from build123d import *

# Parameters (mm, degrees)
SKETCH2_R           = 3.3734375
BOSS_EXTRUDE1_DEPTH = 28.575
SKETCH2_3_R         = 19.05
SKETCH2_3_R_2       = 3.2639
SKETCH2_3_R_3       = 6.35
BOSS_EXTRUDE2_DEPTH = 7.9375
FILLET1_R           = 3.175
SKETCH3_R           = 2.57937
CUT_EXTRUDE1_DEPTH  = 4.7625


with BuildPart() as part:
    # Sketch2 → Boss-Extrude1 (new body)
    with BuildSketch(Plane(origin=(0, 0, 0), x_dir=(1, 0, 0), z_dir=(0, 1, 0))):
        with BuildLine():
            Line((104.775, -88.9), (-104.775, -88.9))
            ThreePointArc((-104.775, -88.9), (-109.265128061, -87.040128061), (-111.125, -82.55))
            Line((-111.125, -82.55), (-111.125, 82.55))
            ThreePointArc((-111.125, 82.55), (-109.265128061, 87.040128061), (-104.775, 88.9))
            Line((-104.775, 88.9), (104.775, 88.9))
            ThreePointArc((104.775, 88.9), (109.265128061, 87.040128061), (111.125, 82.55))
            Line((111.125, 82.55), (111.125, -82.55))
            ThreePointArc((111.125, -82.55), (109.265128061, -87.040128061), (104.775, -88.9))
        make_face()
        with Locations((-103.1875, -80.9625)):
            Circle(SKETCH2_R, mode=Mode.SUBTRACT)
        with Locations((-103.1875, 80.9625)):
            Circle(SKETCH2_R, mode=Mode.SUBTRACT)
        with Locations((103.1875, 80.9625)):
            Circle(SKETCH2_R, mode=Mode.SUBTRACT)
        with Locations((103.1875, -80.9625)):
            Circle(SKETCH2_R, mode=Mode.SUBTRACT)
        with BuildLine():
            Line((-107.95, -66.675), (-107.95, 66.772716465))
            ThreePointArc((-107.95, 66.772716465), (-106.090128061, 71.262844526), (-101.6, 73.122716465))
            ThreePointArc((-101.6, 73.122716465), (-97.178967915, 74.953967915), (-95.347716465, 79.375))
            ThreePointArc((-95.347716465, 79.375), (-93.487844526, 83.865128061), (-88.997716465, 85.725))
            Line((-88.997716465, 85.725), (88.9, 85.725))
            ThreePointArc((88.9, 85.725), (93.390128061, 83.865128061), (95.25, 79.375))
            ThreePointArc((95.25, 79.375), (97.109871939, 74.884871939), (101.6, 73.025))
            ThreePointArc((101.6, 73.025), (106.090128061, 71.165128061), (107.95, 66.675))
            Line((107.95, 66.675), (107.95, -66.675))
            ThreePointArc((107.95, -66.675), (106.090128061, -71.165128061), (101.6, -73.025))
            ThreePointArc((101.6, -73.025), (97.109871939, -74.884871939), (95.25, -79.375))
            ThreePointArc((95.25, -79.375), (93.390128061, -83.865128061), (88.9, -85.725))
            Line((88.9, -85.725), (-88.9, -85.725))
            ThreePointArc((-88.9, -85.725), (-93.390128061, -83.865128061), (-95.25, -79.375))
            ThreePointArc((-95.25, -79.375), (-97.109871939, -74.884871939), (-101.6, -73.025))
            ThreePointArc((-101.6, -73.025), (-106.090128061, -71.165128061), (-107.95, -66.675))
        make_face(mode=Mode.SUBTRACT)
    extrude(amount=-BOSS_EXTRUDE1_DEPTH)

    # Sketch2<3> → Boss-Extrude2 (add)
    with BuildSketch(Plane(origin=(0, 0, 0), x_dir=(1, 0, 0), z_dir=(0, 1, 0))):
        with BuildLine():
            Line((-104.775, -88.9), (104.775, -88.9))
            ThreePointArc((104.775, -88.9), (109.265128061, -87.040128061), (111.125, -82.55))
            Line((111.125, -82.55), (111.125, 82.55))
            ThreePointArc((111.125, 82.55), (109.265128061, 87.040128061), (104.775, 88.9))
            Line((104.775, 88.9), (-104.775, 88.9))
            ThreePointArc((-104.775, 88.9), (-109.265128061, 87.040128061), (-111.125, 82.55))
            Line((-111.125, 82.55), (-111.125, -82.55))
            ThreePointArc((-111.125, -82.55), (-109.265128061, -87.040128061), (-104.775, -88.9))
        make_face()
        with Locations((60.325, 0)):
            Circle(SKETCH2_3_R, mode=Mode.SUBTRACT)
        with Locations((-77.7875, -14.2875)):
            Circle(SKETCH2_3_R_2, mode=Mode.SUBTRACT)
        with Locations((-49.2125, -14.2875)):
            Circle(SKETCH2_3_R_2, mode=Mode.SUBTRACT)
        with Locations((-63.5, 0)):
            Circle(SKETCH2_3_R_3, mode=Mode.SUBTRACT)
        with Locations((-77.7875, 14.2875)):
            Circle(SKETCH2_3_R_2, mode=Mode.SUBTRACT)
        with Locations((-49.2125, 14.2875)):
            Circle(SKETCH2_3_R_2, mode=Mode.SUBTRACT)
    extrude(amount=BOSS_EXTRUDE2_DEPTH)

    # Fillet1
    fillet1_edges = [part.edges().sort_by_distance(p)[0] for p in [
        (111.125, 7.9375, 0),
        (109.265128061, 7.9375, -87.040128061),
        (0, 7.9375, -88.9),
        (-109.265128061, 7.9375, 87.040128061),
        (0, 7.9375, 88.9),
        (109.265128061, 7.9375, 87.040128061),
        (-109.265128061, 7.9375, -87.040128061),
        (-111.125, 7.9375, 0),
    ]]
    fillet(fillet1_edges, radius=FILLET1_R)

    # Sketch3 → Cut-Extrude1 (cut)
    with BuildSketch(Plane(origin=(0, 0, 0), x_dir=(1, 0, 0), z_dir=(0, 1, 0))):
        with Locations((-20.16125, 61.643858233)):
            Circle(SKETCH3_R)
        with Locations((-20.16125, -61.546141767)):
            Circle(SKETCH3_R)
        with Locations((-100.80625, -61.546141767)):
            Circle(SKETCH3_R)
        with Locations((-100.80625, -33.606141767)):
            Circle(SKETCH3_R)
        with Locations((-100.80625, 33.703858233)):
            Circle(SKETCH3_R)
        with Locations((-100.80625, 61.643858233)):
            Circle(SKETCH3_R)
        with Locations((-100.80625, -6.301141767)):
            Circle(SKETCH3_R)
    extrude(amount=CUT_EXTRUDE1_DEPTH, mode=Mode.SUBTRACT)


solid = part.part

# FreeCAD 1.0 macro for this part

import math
import FreeCAD as App
import Part
import Sketcher

V = App.Vector
Q = App.Units.Quantity


def edges_at(feature, points):
    """Names of the edges that pass closest to the given points."""
    edges = feature.Shape.Edges
    near = lambda p: min(range(len(edges)), key=lambda i: edges[i].distToShape(Part.Vertex(*p))[0])
    return sorted({f"Edge{near(p) + 1}" for p in points})

doc = App.newDocument("Part")
body = doc.addObject("PartDesign::Body", "Body")

# Sketch on XZ plane
sketch1 = body.newObject("Sketcher::SketchObject", "Sketch")
sketch1.AttachmentSupport = (doc.getObject("XZ_Plane"), [""])
sketch1.MapMode = "FlatFace"
sketch1.addGeometry([
    Part.LineSegment(V(-104.775, 88.9, 0), V(104.775, 88.9, 0)),  # 0
    Part.ArcOfCircle(Part.Circle(V(104.775, 82.55, 0), V(0, 0, 1), 6.35), math.radians(0), math.radians(90)),  # 1
    Part.LineSegment(V(111.125, 82.55, 0), V(111.125, -82.55, 0)),  # 2
    Part.ArcOfCircle(Part.Circle(V(104.775, -82.55, 0), V(0, 0, 1), 6.35), math.radians(-90), math.radians(0)),  # 3
    Part.LineSegment(V(104.775, -88.9, 0), V(-104.775, -88.9, 0)),  # 4
    Part.ArcOfCircle(Part.Circle(V(-104.775, -82.55, 0), V(0, 0, 1), 6.35), math.radians(180), math.radians(270)),  # 5
    Part.LineSegment(V(-111.125, -82.55, 0), V(-111.125, 82.55, 0)),  # 6
    Part.ArcOfCircle(Part.Circle(V(-104.775, 82.55, 0), V(0, 0, 1), 6.35), math.radians(90), math.radians(180)),  # 7
    Part.Circle(V(103.1875, 80.9625, 0), V(0, 0, 1), 3.373438),  # 8
    Part.Circle(V(-103.1875, 80.9625, 0), V(0, 0, 1), 3.373438),  # 9
    Part.Circle(V(103.1875, -80.9625, 0), V(0, 0, 1), 3.373438),  # 10
    Part.LineSegment(V(-107.95, 66.675, 0), V(-107.95, -66.772716, 0)),  # 11
    Part.ArcOfCircle(Part.Circle(V(-101.6, -66.772716, 0), V(0, 0, 1), 6.35), math.radians(180), math.radians(270)),  # 12
    Part.ArcOfCircle(Part.Circle(V(-101.6, -79.375, 0), V(0, 0, 1), 6.252284), math.radians(0), math.radians(90)),  # 13
    Part.ArcOfCircle(Part.Circle(V(-88.997716, -79.375, 0), V(0, 0, 1), 6.35), math.radians(180), math.radians(270)),  # 14
    Part.LineSegment(V(-88.997716, -85.725, 0), V(88.9, -85.725, 0)),  # 15
    Part.ArcOfCircle(Part.Circle(V(88.9, -79.375, 0), V(0, 0, 1), 6.35), math.radians(-90), math.radians(0)),  # 16
    Part.ArcOfCircle(Part.Circle(V(101.6, -79.375, 0), V(0, 0, 1), 6.35), math.radians(90), math.radians(180)),  # 17
    Part.ArcOfCircle(Part.Circle(V(101.6, -66.675, 0), V(0, 0, 1), 6.35), math.radians(-90), math.radians(0)),  # 18
    Part.LineSegment(V(107.95, -66.675, 0), V(107.95, 66.675, 0)),  # 19
    Part.ArcOfCircle(Part.Circle(V(101.6, 66.675, 0), V(0, 0, 1), 6.35), math.radians(0), math.radians(90)),  # 20
    Part.ArcOfCircle(Part.Circle(V(101.6, 79.375, 0), V(0, 0, 1), 6.35), math.radians(180), math.radians(270)),  # 21
    Part.ArcOfCircle(Part.Circle(V(88.9, 79.375, 0), V(0, 0, 1), 6.35), math.radians(0), math.radians(90)),  # 22
    Part.LineSegment(V(88.9, 85.725, 0), V(-88.9, 85.725, 0)),  # 23
    Part.ArcOfCircle(Part.Circle(V(-88.9, 79.375, 0), V(0, 0, 1), 6.35), math.radians(90), math.radians(180)),  # 24
    Part.ArcOfCircle(Part.Circle(V(-101.6, 79.375, 0), V(0, 0, 1), 6.35), math.radians(-90), math.radians(0)),  # 25
    Part.ArcOfCircle(Part.Circle(V(-101.6, 66.675, 0), V(0, 0, 1), 6.35), math.radians(90), math.radians(180)),  # 26
    Part.Circle(V(-103.1875, -80.9625, 0), V(0, 0, 1), 3.373438),  # 27
], False)
sketch1.addConstraint([
    Sketcher.Constraint("Tangent", 0, 2, 1, 2),
    Sketcher.Constraint("Tangent", 1, 1, 2, 1),
    Sketcher.Constraint("Tangent", 2, 2, 3, 2),
    Sketcher.Constraint("Tangent", 3, 1, 4, 1),
    Sketcher.Constraint("Tangent", 4, 2, 5, 2),
    Sketcher.Constraint("Tangent", 5, 1, 6, 1),
    Sketcher.Constraint("Tangent", 6, 2, 7, 2),
    Sketcher.Constraint("Tangent", 7, 1, 0, 1),
    Sketcher.Constraint("Tangent", 11, 2, 12, 1),
    Sketcher.Constraint("Tangent", 12, 2, 13, 2),
    Sketcher.Constraint("Tangent", 13, 1, 14, 1),
    Sketcher.Constraint("Tangent", 14, 2, 15, 1),
    Sketcher.Constraint("Tangent", 15, 2, 16, 1),
    Sketcher.Constraint("Tangent", 16, 2, 17, 2),
    Sketcher.Constraint("Tangent", 17, 1, 18, 1),
    Sketcher.Constraint("Tangent", 18, 2, 19, 1),
    Sketcher.Constraint("Tangent", 19, 2, 20, 1),
    Sketcher.Constraint("Tangent", 20, 2, 21, 2),
    Sketcher.Constraint("Tangent", 21, 1, 22, 1),
    Sketcher.Constraint("Tangent", 22, 2, 23, 1),
    Sketcher.Constraint("Tangent", 23, 2, 24, 1),
    Sketcher.Constraint("Tangent", 24, 2, 25, 2),
    Sketcher.Constraint("Tangent", 25, 1, 26, 1),
    Sketcher.Constraint("Tangent", 26, 2, 11, 1),
    Sketcher.Constraint("Horizontal", 0),
    Sketcher.Constraint("Vertical", 2),
    Sketcher.Constraint("Horizontal", 4),
    Sketcher.Constraint("Vertical", 6),
    Sketcher.Constraint("Vertical", 11),
    Sketcher.Constraint("Horizontal", 15),
    Sketcher.Constraint("Vertical", 19),
    Sketcher.Constraint("Horizontal", 23),
    Sketcher.Constraint("Equal", 1, 3),
    Sketcher.Constraint("Equal", 3, 5),
    Sketcher.Constraint("Equal", 5, 7),
    Sketcher.Constraint("Equal", 8, 9),
    Sketcher.Constraint("Equal", 9, 10),
    Sketcher.Constraint("Equal", 7, 12),
    Sketcher.Constraint("Equal", 12, 14),
    Sketcher.Constraint("Equal", 14, 16),
    Sketcher.Constraint("Equal", 16, 17),
    Sketcher.Constraint("Equal", 17, 18),
    Sketcher.Constraint("Equal", 18, 20),
    Sketcher.Constraint("Equal", 20, 21),
    Sketcher.Constraint("Equal", 21, 22),
    Sketcher.Constraint("Equal", 22, 24),
    Sketcher.Constraint("Equal", 24, 25),
    Sketcher.Constraint("Equal", 25, 26),
    Sketcher.Constraint("Equal", 10, 27),
    Sketcher.Constraint("Symmetric", 1, 3, 5, 3, -1, 1),
    Sketcher.Constraint("Symmetric", 9, 3, 10, 3, -1, 1),
    Sketcher.Constraint("Symmetric", 13, 3, 21, 3, -1, 1),
    Sketcher.Constraint("Symmetric", 16, 3, 24, 3, -1, 1),
    Sketcher.Constraint("Symmetric", 18, 3, 26, 3, -1, 1),
    Sketcher.Constraint("Symmetric", 8, 3, 27, 3, -1, 1),
    Sketcher.Constraint("Symmetric", 8, 3, 9, 3, -2),
    Sketcher.Constraint("Symmetric", 13, 3, 17, 3, -2),
    Sketcher.Constraint("Horizontal", 13, 3, 14, 3),
    Sketcher.Constraint("Vertical", 12, 3, 13, 3),
    Sketcher.Constraint("DistanceX", 23, 2, 23, 1, Q("7 in")),
    Sketcher.Constraint("Radius", 1, Q("0.25 in")),
    Sketcher.Constraint("Diameter", 8, Q("0.265625 in")),
    Sketcher.Constraint("DistanceY", 2, 2, 2, 1, Q("6.5 in")),
    Sketcher.Constraint("DistanceX", 0, 1, 0, 2, Q("8.25 in")),
    Sketcher.Constraint("DistanceY", 19, 1, 19, 2, Q("5.25 in")),
    Sketcher.Constraint("DistanceX", -1, 1, 8, 3, Q("4.0625 in")),
    Sketcher.Constraint("DistanceY", -1, 1, 8, 3, Q("3.1875 in")),
    Sketcher.Constraint("Radius", 13, Q("6.252284 mm")),
])
pad1 = body.newObject("PartDesign::Pad", "Pad")
pad1.Profile = sketch1
pad1.Length = Q("1.125 in")

# Sketch on XZ plane
sketch2 = body.newObject("Sketcher::SketchObject", "Sketch001")
sketch2.AttachmentSupport = (doc.getObject("XZ_Plane"), [""])
sketch2.MapMode = "FlatFace"
sketch2.addGeometry([
    Part.LineSegment(V(-104.775, 88.9, 0), V(104.775, 88.9, 0)),  # 0
    Part.ArcOfCircle(Part.Circle(V(104.775, 82.55, 0), V(0, 0, 1), 6.35), math.radians(0), math.radians(90)),  # 1
    Part.LineSegment(V(111.125, 82.55, 0), V(111.125, -82.55, 0)),  # 2
    Part.ArcOfCircle(Part.Circle(V(104.775, -82.55, 0), V(0, 0, 1), 6.35), math.radians(-90), math.radians(0)),  # 3
    Part.LineSegment(V(104.775, -88.9, 0), V(-104.775, -88.9, 0)),  # 4
    Part.ArcOfCircle(Part.Circle(V(-104.775, -82.55, 0), V(0, 0, 1), 6.35), math.radians(180), math.radians(270)),  # 5
    Part.LineSegment(V(-111.125, -82.55, 0), V(-111.125, 82.55, 0)),  # 6
    Part.ArcOfCircle(Part.Circle(V(-104.775, 82.55, 0), V(0, 0, 1), 6.35), math.radians(90), math.radians(180)),  # 7
    Part.Circle(V(-77.7875, 14.2875, 0), V(0, 0, 1), 3.2639),  # 8
    Part.Circle(V(-49.2125, 14.2875, 0), V(0, 0, 1), 3.2639),  # 9
    Part.Circle(V(-63.5, 0, 0), V(0, 0, 1), 6.35),  # 10
    Part.Circle(V(-77.7875, -14.2875, 0), V(0, 0, 1), 3.2639),  # 11
    Part.Circle(V(-49.2125, -14.2875, 0), V(0, 0, 1), 3.2639),  # 12
    Part.Circle(V(60.325, 0, 0), V(0, 0, 1), 19.05),  # 13
], False)
sketch2.addConstraint([
    Sketcher.Constraint("Tangent", 0, 2, 1, 2),
    Sketcher.Constraint("Tangent", 1, 1, 2, 1),
    Sketcher.Constraint("Tangent", 2, 2, 3, 2),
    Sketcher.Constraint("Tangent", 3, 1, 4, 1),
    Sketcher.Constraint("Tangent", 4, 2, 5, 2),
    Sketcher.Constraint("Tangent", 5, 1, 6, 1),
    Sketcher.Constraint("Tangent", 6, 2, 7, 2),
    Sketcher.Constraint("Tangent", 7, 1, 0, 1),
    Sketcher.Constraint("Horizontal", 0),
    Sketcher.Constraint("Vertical", 2),
    Sketcher.Constraint("Horizontal", 4),
    Sketcher.Constraint("Vertical", 6),
    Sketcher.Constraint("Equal", 1, 3),
    Sketcher.Constraint("Equal", 3, 5),
    Sketcher.Constraint("Equal", 5, 7),
    Sketcher.Constraint("Equal", 8, 9),
    Sketcher.Constraint("Equal", 7, 10),
    Sketcher.Constraint("Equal", 9, 11),
    Sketcher.Constraint("Equal", 11, 12),
    Sketcher.Constraint("Symmetric", 1, 3, 5, 3, -1, 1),
    Sketcher.Constraint("Symmetric", 8, 3, 11, 3, -1),
    Sketcher.Constraint("Symmetric", 9, 3, 12, 3, -1),
    Sketcher.Constraint("PointOnObject", 10, 3, -1),
    Sketcher.Constraint("PointOnObject", 13, 3, -1),
    Sketcher.Constraint("Horizontal", 8, 3, 9, 3),
    Sketcher.Constraint("Diameter", 10, Q("0.5 in")),
    Sketcher.Constraint("Diameter", 13, Q("1.5 in")),
    Sketcher.Constraint("Diameter", 8, Q("0.257 in")),
    Sketcher.Constraint("DistanceY", 2, 2, 2, 1, Q("6.5 in")),
    Sketcher.Constraint("DistanceX", 13, 3, 1, 1, Q("2 in")),
    Sketcher.Constraint("DistanceX", 0, 1, 0, 2, Q("8.25 in")),
    Sketcher.Constraint("DistanceX", 10, 3, -1, 1, Q("2.5 in")),
    Sketcher.Constraint("DistanceX", 8, 3, -1, 1, Q("3.0625 in")),
    Sketcher.Constraint("DistanceY", -1, 1, 8, 3, Q("0.5625 in")),
    Sketcher.Constraint("DistanceX", 9, 3, -1, 1, Q("1.9375 in")),
])
pad2 = body.newObject("PartDesign::Pad", "Pad001")
pad2.Profile = sketch2
pad2.Length = Q("0.3125 in")
pad2.Reversed = True
doc.recompute()

fillet = body.newObject("PartDesign::Fillet", "Fillet")
fillet.Base = (pad2, edges_at(pad2, [
    (111.125, 7.938, 0),
    (109.265, 7.938, -87.04),
    (0, 7.938, -88.9),
    (-109.265, 7.938, 87.04),
    (0, 7.938, 88.9),
    (109.265, 7.938, 87.04),
    (-109.265, 7.938, -87.04),
    (-111.125, 7.938, 0),
]))
fillet.Radius = Q("0.125 in")

# Sketch on XZ plane
sketch3 = body.newObject("Sketcher::SketchObject", "Sketch002")
sketch3.AttachmentSupport = (doc.getObject("XZ_Plane"), [""])
sketch3.MapMode = "FlatFace"
sketch3.addGeometry([
    Part.Circle(V(-20.16125, -61.643858, 0), V(0, 0, 1), 2.57937),  # 0
    Part.Circle(V(-20.16125, 61.546142, 0), V(0, 0, 1), 2.57937),  # 1
    Part.Circle(V(-100.80625, 61.546142, 0), V(0, 0, 1), 2.57937),  # 2
    Part.Circle(V(-100.80625, 33.606142, 0), V(0, 0, 1), 2.57937),  # 3
    Part.Circle(V(-100.80625, -33.703858, 0), V(0, 0, 1), 2.57937),  # 4
    Part.Circle(V(-100.80625, -61.643858, 0), V(0, 0, 1), 2.57937),  # 5
    Part.Circle(V(-100.80625, 6.301142, 0), V(0, 0, 1), 2.57937),  # 6
], False)
sketch3.addConstraint([
    Sketcher.Constraint("Equal", 0, 1),
    Sketcher.Constraint("Equal", 1, 2),
    Sketcher.Constraint("Equal", 2, 3),
    Sketcher.Constraint("Equal", 3, 4),
    Sketcher.Constraint("Equal", 4, 5),
    Sketcher.Constraint("Equal", 5, 6),
    Sketcher.Constraint("Horizontal", 1, 3, 2, 3),
    Sketcher.Constraint("Horizontal", 0, 3, 5, 3),
    Sketcher.Constraint("Vertical", 0, 3, 1, 3),
    Sketcher.Constraint("Vertical", 2, 3, 3, 3),
    Sketcher.Constraint("Vertical", 3, 3, 4, 3),
    Sketcher.Constraint("Vertical", 4, 3, 5, 3),
    Sketcher.Constraint("Vertical", 5, 3, 6, 3),
    Sketcher.Constraint("Diameter", 0, Q("0.2031 in")),
    Sketcher.Constraint("DistanceY", 3, 3, 2, 3, Q("1.1 in")),
    Sketcher.Constraint("DistanceY", 0, 3, 4, 3, Q("1.1 in")),
    Sketcher.Constraint("DistanceY", 0, 3, 1, 3, Q("4.85 in")),
    Sketcher.Constraint("DistanceX", 2, 3, -1, 1, Q("3.96875 in")),
    Sketcher.Constraint("DistanceX", 2, 3, 1, 3, Q("3.175 in")),
    Sketcher.Constraint("DistanceY", 6, 3, 3, 3, Q("1.075 in")),
    Sketcher.Constraint("DistanceY", 0, 3, -1, 1, Q("61.643858 mm")),
])
pocket1 = body.newObject("PartDesign::Pocket", "Pocket")
pocket1.Profile = sketch3
pocket1.Length = Q("0.1875 in")

doc.recompute()
